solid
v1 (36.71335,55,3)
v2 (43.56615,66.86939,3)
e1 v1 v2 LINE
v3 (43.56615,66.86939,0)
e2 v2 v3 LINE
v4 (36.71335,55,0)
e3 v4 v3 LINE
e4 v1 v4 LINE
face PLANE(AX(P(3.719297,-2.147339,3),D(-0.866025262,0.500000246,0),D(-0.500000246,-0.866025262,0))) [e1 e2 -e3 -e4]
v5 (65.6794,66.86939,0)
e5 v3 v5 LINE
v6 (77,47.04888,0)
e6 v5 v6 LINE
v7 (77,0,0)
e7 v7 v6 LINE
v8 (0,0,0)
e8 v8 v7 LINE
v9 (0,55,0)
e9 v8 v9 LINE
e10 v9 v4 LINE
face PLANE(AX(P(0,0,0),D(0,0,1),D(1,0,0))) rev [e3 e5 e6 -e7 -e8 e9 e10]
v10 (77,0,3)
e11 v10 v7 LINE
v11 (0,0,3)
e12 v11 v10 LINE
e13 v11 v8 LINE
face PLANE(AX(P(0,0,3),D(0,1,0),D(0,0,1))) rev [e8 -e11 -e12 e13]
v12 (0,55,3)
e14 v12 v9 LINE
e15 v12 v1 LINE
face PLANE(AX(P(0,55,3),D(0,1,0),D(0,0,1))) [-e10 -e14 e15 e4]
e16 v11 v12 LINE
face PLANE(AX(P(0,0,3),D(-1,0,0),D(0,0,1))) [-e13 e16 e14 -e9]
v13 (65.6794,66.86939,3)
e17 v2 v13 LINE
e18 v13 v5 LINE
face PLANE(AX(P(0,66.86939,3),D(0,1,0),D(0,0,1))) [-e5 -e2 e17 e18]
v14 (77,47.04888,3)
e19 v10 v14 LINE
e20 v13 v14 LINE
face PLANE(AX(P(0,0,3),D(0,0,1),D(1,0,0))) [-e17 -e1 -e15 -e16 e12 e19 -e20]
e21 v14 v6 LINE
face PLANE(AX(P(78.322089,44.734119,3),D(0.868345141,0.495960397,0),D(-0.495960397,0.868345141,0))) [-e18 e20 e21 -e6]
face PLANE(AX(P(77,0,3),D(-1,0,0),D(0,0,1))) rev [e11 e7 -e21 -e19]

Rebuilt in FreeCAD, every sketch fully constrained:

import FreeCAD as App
import Part
import Sketcher

V = App.Vector
Q = App.Units.Quantity


def add_polygon(sketch, points):
    """Adds a closed chain of lines whose ends are joined by coincident constraints."""
    first, n = sketch.GeometryCount, len(points)
    for a, b in zip(points, points[1:] + points[:1]):
        sketch.addGeometry(Part.LineSegment(App.Vector(*a, 0), App.Vector(*b, 0)), False)
    for i in range(n):
        sketch.addConstraint(Sketcher.Constraint("Coincident", first + i, 2, first + (i + 1) % n, 1))

doc = App.newDocument("Part")
body = doc.addObject("PartDesign::Body", "Body")

sketch1 = body.newObject("Sketcher::SketchObject", "Sketch")
sketch1.AttachmentSupport = (doc.getObject("XY_Plane"), [""])
sketch1.MapMode = "FlatFace"
add_polygon(sketch1, [(0, 0), (77, 0), (77, 47), (66, 67), (44, 67), (37, 55), (0, 55)])
sketch1.addConstraint([
    Sketcher.Constraint("Horizontal", 0),
    Sketcher.Constraint("Vertical", 1),
    Sketcher.Constraint("Horizontal", 3),
    Sketcher.Constraint("Horizontal", 5),
    Sketcher.Constraint("Vertical", 6),
    Sketcher.Constraint("Coincident", 6, 2, -1, 1),
    Sketcher.Constraint("DistanceX", 0, 1, 0, 2, 77.0),
    Sketcher.Constraint("DistanceY", 6, 2, 6, 1, 55.0),
    Sketcher.Constraint("Angle", 4, Q("-120.000016 deg")),
    Sketcher.Constraint("DistanceX", 3, 2, 3, 1, 22.11325),
    Sketcher.Constraint("DistanceX", 5, 2, 5, 1, 36.71335),
    Sketcher.Constraint("DistanceY", 1, 1, 1, 2, 47.04888),
    Sketcher.Constraint("DistanceX", -1, 1, 2, 2, 65.6794),
])
pad1 = body.newObject("PartDesign::Pad", "Pad")
pad1.Profile = sketch1
pad1.Length = 3

doc.recompute()
